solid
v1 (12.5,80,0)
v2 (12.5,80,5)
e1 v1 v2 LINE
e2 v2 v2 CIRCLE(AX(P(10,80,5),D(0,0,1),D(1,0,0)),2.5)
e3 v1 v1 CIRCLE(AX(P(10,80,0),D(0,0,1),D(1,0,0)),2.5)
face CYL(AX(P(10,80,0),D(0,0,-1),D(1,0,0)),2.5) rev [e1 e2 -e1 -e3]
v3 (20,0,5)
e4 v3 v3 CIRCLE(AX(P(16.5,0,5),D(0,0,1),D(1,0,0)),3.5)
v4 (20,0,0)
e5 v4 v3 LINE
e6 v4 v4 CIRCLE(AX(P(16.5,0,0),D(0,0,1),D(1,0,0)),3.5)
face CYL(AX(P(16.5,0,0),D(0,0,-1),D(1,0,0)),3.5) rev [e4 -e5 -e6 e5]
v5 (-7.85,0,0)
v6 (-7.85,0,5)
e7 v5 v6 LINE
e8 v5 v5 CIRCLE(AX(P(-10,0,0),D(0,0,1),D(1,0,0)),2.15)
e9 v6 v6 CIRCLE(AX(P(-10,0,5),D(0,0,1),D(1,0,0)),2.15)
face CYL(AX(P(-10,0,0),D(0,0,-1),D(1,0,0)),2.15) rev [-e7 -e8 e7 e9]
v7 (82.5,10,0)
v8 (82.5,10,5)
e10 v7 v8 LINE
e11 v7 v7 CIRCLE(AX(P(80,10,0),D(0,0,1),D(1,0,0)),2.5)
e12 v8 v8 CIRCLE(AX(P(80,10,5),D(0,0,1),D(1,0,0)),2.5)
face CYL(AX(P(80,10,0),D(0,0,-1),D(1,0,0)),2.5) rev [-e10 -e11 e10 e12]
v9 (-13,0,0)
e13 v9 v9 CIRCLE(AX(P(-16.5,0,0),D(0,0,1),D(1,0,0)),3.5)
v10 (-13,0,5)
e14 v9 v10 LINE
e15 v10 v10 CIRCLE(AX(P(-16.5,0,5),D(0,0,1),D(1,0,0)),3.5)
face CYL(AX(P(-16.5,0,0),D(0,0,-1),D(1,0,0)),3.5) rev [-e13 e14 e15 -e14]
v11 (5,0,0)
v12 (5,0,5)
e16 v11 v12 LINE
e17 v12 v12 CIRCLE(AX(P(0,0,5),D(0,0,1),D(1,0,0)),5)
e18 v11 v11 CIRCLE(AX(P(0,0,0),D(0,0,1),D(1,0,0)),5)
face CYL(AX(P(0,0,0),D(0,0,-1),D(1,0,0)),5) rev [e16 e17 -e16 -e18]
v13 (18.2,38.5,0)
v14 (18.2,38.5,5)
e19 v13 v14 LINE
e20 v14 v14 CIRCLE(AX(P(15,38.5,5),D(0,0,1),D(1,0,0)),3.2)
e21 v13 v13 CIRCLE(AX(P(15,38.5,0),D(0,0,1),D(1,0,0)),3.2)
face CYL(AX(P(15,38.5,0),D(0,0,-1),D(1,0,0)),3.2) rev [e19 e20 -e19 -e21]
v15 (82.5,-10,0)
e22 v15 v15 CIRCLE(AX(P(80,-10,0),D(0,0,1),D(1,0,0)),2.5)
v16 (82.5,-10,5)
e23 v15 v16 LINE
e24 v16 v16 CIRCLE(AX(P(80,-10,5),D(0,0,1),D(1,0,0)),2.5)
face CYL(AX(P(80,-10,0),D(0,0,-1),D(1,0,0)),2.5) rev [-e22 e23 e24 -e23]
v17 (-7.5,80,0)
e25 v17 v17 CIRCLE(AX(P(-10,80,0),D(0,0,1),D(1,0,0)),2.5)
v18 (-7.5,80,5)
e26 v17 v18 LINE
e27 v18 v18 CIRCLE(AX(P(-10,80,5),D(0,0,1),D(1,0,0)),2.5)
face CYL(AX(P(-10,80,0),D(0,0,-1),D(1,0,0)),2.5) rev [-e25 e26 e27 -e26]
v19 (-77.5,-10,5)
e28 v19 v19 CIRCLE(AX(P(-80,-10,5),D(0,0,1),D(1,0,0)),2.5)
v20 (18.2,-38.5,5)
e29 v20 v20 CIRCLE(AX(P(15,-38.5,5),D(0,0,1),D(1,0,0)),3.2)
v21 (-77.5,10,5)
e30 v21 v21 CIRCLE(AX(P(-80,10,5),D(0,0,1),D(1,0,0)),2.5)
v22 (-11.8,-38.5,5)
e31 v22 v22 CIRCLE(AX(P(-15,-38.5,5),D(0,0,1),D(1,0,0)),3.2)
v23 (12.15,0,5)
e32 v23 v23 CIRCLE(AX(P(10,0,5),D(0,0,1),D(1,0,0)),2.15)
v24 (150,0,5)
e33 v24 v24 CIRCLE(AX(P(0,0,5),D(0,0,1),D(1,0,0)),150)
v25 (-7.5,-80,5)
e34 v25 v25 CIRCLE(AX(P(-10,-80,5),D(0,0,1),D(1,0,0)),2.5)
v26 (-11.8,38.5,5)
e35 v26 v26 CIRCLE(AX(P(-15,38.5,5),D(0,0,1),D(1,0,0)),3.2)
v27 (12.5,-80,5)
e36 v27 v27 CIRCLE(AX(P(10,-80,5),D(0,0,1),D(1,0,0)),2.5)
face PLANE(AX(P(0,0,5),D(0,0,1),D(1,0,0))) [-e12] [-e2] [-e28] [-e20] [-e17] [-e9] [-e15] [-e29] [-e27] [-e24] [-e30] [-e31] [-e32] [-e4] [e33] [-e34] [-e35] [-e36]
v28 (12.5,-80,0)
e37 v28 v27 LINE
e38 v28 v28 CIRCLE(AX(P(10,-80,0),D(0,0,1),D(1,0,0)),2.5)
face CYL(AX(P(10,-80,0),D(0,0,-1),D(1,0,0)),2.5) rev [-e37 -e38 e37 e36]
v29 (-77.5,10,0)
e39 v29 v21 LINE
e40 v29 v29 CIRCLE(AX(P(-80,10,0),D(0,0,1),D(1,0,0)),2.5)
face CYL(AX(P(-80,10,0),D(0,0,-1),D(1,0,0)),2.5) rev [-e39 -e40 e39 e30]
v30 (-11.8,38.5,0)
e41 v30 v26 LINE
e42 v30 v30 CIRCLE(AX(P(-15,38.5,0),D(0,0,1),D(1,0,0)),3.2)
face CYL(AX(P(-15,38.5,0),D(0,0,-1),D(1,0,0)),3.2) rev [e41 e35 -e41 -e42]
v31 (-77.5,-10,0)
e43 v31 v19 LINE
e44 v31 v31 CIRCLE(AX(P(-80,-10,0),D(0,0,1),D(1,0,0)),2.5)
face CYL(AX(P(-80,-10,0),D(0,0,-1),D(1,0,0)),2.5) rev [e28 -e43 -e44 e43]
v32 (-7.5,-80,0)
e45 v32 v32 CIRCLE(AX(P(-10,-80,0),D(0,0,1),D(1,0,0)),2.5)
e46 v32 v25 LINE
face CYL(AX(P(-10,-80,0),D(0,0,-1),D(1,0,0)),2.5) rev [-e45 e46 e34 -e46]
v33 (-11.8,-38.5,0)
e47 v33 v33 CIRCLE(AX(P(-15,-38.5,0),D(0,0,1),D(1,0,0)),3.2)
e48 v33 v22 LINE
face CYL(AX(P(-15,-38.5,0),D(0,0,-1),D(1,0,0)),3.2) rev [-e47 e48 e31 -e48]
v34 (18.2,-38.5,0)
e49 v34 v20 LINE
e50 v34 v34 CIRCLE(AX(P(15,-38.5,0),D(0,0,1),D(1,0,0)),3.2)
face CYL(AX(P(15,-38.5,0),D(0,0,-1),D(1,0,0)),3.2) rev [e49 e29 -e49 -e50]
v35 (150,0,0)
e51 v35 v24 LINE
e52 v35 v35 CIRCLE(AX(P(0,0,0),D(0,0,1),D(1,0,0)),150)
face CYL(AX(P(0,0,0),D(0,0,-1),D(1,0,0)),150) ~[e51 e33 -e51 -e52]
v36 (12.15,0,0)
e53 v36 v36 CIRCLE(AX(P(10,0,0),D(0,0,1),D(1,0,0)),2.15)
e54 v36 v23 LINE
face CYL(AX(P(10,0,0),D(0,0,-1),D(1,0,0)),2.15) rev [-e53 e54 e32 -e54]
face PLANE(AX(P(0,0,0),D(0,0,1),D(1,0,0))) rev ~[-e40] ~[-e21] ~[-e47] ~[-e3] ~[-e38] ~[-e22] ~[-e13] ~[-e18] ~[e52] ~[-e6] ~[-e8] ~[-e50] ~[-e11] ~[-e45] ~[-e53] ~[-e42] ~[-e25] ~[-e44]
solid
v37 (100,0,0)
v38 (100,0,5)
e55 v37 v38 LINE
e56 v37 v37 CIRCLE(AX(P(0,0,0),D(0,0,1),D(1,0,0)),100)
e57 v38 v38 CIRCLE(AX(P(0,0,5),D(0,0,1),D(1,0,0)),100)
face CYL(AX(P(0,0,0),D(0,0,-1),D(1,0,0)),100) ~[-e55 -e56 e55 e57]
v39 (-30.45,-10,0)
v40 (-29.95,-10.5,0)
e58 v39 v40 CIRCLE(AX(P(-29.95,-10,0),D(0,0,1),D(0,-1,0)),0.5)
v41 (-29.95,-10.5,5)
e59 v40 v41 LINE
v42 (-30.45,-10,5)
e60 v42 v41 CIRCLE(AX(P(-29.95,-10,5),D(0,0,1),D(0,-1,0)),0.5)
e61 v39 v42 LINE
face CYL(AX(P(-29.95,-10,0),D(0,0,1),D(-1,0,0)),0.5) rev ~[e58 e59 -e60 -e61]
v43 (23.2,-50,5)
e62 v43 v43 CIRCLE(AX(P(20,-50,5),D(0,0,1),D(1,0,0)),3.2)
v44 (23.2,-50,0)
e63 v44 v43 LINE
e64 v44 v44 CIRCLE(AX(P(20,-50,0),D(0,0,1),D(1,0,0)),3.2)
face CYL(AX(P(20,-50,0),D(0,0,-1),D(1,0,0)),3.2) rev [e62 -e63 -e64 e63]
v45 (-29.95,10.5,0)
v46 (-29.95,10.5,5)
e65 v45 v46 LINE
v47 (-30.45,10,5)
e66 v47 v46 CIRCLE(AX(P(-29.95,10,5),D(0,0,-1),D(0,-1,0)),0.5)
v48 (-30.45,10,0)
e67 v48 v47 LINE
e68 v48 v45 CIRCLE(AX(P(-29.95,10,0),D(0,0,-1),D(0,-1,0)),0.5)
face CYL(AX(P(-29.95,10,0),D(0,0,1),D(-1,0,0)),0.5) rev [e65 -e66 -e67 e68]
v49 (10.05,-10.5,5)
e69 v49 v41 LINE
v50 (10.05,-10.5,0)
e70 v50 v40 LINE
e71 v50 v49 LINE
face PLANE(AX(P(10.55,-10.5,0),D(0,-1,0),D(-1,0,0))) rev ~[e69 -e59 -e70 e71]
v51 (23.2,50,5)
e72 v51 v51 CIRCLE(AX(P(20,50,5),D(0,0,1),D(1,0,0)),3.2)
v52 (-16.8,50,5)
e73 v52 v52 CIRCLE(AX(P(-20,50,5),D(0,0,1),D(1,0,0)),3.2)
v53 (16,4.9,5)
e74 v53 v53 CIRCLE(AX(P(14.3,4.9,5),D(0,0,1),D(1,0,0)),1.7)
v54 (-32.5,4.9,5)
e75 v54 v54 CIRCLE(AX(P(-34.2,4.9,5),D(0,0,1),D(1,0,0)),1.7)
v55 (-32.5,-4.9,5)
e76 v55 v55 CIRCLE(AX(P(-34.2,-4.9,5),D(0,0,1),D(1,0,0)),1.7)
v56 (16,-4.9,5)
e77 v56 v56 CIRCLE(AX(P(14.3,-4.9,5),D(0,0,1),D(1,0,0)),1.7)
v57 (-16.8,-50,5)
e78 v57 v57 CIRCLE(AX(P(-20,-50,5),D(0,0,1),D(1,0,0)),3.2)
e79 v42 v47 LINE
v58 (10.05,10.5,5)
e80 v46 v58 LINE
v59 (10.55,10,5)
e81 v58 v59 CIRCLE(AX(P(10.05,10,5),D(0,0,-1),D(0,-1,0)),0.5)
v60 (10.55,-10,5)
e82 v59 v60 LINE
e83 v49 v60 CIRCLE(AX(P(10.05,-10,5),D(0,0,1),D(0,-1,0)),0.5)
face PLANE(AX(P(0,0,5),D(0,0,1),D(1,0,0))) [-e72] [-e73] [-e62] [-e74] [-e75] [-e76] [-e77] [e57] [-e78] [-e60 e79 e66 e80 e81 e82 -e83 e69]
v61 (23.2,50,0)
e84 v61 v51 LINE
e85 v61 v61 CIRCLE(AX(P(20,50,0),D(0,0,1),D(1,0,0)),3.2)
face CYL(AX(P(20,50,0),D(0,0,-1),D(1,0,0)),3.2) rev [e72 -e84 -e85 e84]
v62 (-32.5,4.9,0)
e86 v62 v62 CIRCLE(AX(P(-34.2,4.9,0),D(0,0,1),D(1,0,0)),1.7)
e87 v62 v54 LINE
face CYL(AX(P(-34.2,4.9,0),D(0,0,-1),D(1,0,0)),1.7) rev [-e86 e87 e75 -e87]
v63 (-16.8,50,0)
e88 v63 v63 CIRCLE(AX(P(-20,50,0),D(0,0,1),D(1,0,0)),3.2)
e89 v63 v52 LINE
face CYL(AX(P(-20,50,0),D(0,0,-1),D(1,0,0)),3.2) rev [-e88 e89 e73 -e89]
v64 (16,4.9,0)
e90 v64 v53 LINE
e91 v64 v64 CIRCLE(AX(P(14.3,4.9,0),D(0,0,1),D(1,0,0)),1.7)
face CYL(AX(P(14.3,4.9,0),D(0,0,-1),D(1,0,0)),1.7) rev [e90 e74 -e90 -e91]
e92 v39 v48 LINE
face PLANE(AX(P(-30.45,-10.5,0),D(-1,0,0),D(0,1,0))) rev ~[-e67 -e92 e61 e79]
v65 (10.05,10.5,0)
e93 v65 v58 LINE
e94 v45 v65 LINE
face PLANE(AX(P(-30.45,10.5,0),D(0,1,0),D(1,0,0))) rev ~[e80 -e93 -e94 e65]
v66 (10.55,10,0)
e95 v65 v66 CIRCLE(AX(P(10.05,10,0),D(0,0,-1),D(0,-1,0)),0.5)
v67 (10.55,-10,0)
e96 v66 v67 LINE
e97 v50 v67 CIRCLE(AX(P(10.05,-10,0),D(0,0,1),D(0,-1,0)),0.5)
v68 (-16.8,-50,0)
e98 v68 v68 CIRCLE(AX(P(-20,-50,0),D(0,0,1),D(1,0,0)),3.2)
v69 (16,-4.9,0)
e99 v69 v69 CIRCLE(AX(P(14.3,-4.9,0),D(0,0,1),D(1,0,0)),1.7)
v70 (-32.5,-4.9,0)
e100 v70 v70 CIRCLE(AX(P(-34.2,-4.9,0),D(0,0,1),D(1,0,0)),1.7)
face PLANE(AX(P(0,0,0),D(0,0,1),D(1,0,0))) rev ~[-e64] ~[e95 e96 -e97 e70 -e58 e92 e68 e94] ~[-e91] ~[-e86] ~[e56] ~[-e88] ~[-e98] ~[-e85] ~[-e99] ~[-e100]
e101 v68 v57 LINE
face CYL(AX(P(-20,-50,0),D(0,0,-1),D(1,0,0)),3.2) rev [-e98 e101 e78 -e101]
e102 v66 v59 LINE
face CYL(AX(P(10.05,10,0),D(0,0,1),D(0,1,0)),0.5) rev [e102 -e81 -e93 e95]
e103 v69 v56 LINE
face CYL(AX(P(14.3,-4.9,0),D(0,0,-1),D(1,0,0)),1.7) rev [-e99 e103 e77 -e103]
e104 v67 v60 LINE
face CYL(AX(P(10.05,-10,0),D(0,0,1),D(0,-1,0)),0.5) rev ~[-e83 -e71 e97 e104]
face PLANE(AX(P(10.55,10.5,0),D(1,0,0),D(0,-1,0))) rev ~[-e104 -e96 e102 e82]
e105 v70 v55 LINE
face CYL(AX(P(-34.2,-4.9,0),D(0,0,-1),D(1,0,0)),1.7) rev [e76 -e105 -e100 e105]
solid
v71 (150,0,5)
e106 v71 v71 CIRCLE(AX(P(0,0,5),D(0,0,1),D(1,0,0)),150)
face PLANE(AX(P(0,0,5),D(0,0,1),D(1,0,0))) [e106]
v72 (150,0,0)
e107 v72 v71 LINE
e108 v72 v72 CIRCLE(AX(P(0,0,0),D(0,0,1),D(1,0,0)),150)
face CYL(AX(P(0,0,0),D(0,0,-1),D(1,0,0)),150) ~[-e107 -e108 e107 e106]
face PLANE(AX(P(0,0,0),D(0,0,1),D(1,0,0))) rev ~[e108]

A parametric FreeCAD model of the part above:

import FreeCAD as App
import Part
import Sketcher

V = App.Vector


def edges_at(feature, points):
    """Names of the edges that pass closest to the given points."""
    edges = feature.Shape.Edges
    near = lambda p: min(range(len(edges)), key=lambda i: edges[i].distToShape(Part.Vertex(*p))[0])
    return sorted({f"Edge{near(p) + 1}" for p in points})


def add_polygon(sketch, points):
    """Adds a closed chain of lines whose ends are joined by coincident constraints."""
    first, n = sketch.GeometryCount, len(points)
    for a, b in zip(points, points[1:] + points[:1]):
        sketch.addGeometry(Part.LineSegment(App.Vector(*a, 0), App.Vector(*b, 0)), False)
    for i in range(n):
        sketch.addConstraint(Sketcher.Constraint("Coincident", first + i, 2, first + (i + 1) % n, 1))

doc = App.newDocument("Part")
params = doc.addObject("Spreadsheet::Sheet", "Params")
for row, (alias, value) in enumerate([
    ("sketch1_diameter", "300 mm"),
    ("pad1_length", "5 mm"),
    ("sketch2_diameter", "300 mm"),
    ("sketch2_diameter2", "5 mm"),
    ("sketch2_diameter3", "7 mm"),
    ("sketch2_diameter4", "10 mm"),
    ("sketch2_diameter5", "6.4 mm"),
    ("pad2_length", "5 mm"),
    ("sketch3_diameter", "200 mm"),
    ("sketch3_diameter2", "6.4 mm"),
    ("sketch3_diameter3", "3.4 mm"),
    ("sketch3_width", "41 mm"),
    ("sketch3_height", "21 mm"),
    ("pad3_length", "5 mm"),
    ("fillet_radius", "0.5 mm"),
], start=1):
    params.set(f"A{row}", alias)
    params.set(f"B{row}", "=" + value)
    params.setAlias(f"B{row}", alias)

body = doc.addObject("PartDesign::Body", "Body")

# Sketch on XY plane
sketch1 = body.newObject("Sketcher::SketchObject", "Sketch")
sketch1.AttachmentSupport = (doc.getObject("XY_Plane"), [""])
sketch1.MapMode = "FlatFace"
sketch1.addGeometry(Part.Circle(V(0, 0, 0), V(0, 0, 1), 150), False)
sketch1.addConstraint(Sketcher.Constraint("Coincident", 0, 3, -1, 1))
sketch1.addConstraint(Sketcher.Constraint("Diameter", 0, 300.0))
sketch1.setExpression("Constraints[1]", "Params.sketch1_diameter")
pad1 = body.newObject("PartDesign::Pad", "Pad")
pad1.Profile = sketch1
pad1.setExpression("Length", "Params.pad1_length")
body2 = doc.addObject("PartDesign::Body", "Body001")

# Sketch on XY plane
sketch2 = body2.newObject("Sketcher::SketchObject", "Sketch001")
sketch2.AttachmentSupport = (doc.getObject("XY_Plane001"), [""])
sketch2.MapMode = "FlatFace"
sketch2.addGeometry(Part.Circle(V(0, 0, 0), V(0, 0, 1), 150), False)
sketch2.addGeometry(Part.Circle(V(-10, -80, 0), V(0, 0, 1), 2.5), False)
sketch2.addGeometry(Part.Circle(V(-80, -10, 0), V(0, 0, 1), 2.5), False)
sketch2.addGeometry(Part.Circle(V(-15, -38.5, 0), V(0, 0, 1), 3.2), False)
sketch2.addGeometry(Part.Circle(V(10, -80, 0), V(0, 0, 1), 2.5), False)
sketch2.addGeometry(Part.Circle(V(15, -38.5, 0), V(0, 0, 1), 3.2), False)
sketch2.addGeometry(Part.Circle(V(80, -10, 0), V(0, 0, 1), 2.5), False)
sketch2.addGeometry(Part.Circle(V(-80, 10, 0), V(0, 0, 1), 2.5), False)
sketch2.addGeometry(Part.Circle(V(-16.5, 0, 0), V(0, 0, 1), 3.5), False)
sketch2.addGeometry(Part.Circle(V(-10, 0, 0), V(0, 0, 1), 2.1), False)
sketch2.addGeometry(Part.Circle(V(-15, 38.5, 0), V(0, 0, 1), 3.2), False)
sketch2.addGeometry(Part.Circle(V(-10, 80, 0), V(0, 0, 1), 2.5), False)
sketch2.addGeometry(Part.Circle(V(0, 0, 0), V(0, 0, 1), 5), False)
sketch2.addGeometry(Part.Circle(V(10, 0, 0), V(0, 0, 1), 2.1), False)
sketch2.addGeometry(Part.Circle(V(16.5, 0, 0), V(0, 0, 1), 3.5), False)
sketch2.addGeometry(Part.Circle(V(15, 38.5, 0), V(0, 0, 1), 3.2), False)
sketch2.addGeometry(Part.Circle(V(80, 10, 0), V(0, 0, 1), 2.5), False)
sketch2.addGeometry(Part.Circle(V(10, 80, 0), V(0, 0, 1), 2.5), False)
sketch2.addConstraint(Sketcher.Constraint("Coincident", 0, 3, -1, 1))
sketch2.addConstraint(Sketcher.Constraint("Coincident", 12, 3, -1, 1))
sketch2.addConstraint(Sketcher.Constraint("Equal", 1, 2))
sketch2.addConstraint(Sketcher.Constraint("Equal", 2, 4))
sketch2.addConstraint(Sketcher.Constraint("Equal", 3, 5))
sketch2.addConstraint(Sketcher.Constraint("Equal", 4, 6))
sketch2.addConstraint(Sketcher.Constraint("Equal", 6, 7))
sketch2.addConstraint(Sketcher.Constraint("Equal", 5, 10))
sketch2.addConstraint(Sketcher.Constraint("Equal", 7, 11))
sketch2.addConstraint(Sketcher.Constraint("Equal", 9, 13))
sketch2.addConstraint(Sketcher.Constraint("Equal", 8, 14))
sketch2.addConstraint(Sketcher.Constraint("Equal", 10, 15))
sketch2.addConstraint(Sketcher.Constraint("Equal", 11, 16))
sketch2.addConstraint(Sketcher.Constraint("Equal", 16, 17))
sketch2.addConstraint(Sketcher.Constraint("Symmetric", 6, 3, 7, 3, -1, 1))
sketch2.addConstraint(Sketcher.Constraint("Symmetric", 5, 3, 10, 3, -1, 1))
sketch2.addConstraint(Sketcher.Constraint("Symmetric", 4, 3, 11, 3, -1, 1))
sketch2.addConstraint(Sketcher.Constraint("Symmetric", 9, 3, 13, 3, -1, 1))
sketch2.addConstraint(Sketcher.Constraint("Symmetric", 8, 3, 14, 3, -1, 1))
sketch2.addConstraint(Sketcher.Constraint("Symmetric", 3, 3, 15, 3, -1, 1))
sketch2.addConstraint(Sketcher.Constraint("Symmetric", 2, 3, 16, 3, -1, 1))
sketch2.addConstraint(Sketcher.Constraint("Symmetric", 1, 3, 17, 3, -1, 1))
sketch2.addConstraint(Sketcher.Constraint("Symmetric", 1, 3, 4, 3, -2))
sketch2.addConstraint(Sketcher.Constraint("Symmetric", 3, 3, 5, 3, -2))
sketch2.addConstraint(Sketcher.Constraint("Symmetric", 2, 3, 6, 3, -2))
sketch2.addConstraint(Sketcher.Constraint("PointOnObject", 8, 3, -1))
sketch2.addConstraint(Sketcher.Constraint("PointOnObject", 9, 3, -1))
sketch2.addConstraint(Sketcher.Constraint("Vertical", 1, 3, 9, 3))
sketch2.addConstraint(Sketcher.Constraint("Diameter", 0, 300.0))
sketch2.addConstraint(Sketcher.Constraint("Diameter", 1, 5.0))
sketch2.addConstraint(Sketcher.Constraint("Diameter", 8, 7.0))
sketch2.addConstraint(Sketcher.Constraint("Diameter", 12, 10.0))
sketch2.addConstraint(Sketcher.Constraint("Diameter", 3, 6.4))
sketch2.addConstraint(Sketcher.Constraint("Diameter", 9, 4.3))
sketch2.addConstraint(Sketcher.Constraint("DistanceX", 1, 3, -1, 1, 10.0))
sketch2.addConstraint(Sketcher.Constraint("DistanceY", 1, 3, -1, 1, 80.0))
sketch2.addConstraint(Sketcher.Constraint("DistanceX", 2, 3, -1, 1, 80.0))
sketch2.addConstraint(Sketcher.Constraint("DistanceY", 2, 3, -1, 1, 10.0))
sketch2.addConstraint(Sketcher.Constraint("DistanceX", 3, 3, -1, 1, 15.0))
sketch2.addConstraint(Sketcher.Constraint("DistanceY", 3, 3, 10, 3, 77.0))
sketch2.addConstraint(Sketcher.Constraint("DistanceX", 8, 3, 14, 3, 33.0))
sketch2.setExpression("Constraints[28]", "Params.sketch2_diameter")
sketch2.setExpression("Constraints[29]", "Params.sketch2_diameter2")
sketch2.setExpression("Constraints[30]", "Params.sketch2_diameter3")
sketch2.setExpression("Constraints[31]", "Params.sketch2_diameter4")
sketch2.setExpression("Constraints[32]", "Params.sketch2_diameter5")
pad2 = body2.newObject("PartDesign::Pad", "Pad001")
pad2.Profile = sketch2
pad2.setExpression("Length", "Params.pad2_length")
body3 = doc.addObject("PartDesign::Body", "Body002")

# Sketch on XY plane
sketch3 = body3.newObject("Sketcher::SketchObject", "Sketch002")
sketch3.AttachmentSupport = (doc.getObject("XY_Plane002"), [""])
sketch3.MapMode = "FlatFace"
sketch3.addGeometry(Part.Circle(V(0, 0, 0), V(0, 0, 1), 100), False)  # 0
sketch3.addGeometry(Part.Circle(V(-20, -50, 0), V(0, 0, 1), 3.2), False)  # 1
sketch3.addGeometry(Part.Circle(V(-34.2, -4.9, 0), V(0, 0, 1), 1.7), False)  # 2
sketch3.addGeometry(Part.Circle(V(20, -50, 0), V(0, 0, 1), 3.2), False)  # 3
sketch3.addGeometry(Part.Circle(V(14.3, -4.9, 0), V(0, 0, 1), 1.7), False)  # 4
sketch3.addGeometry(Part.Circle(V(-34.2, 4.9, 0), V(0, 0, 1), 1.7), False)  # 5
add_polygon(sketch3, [(-30.4, -10.5), (-30.4, 10.5), (10.6, 10.5), (10.6, -10.5)])  # lines 6-9
sketch3.addGeometry(Part.Circle(V(-20, 50, 0), V(0, 0, 1), 3.2), False)  # 10
sketch3.addGeometry(Part.Circle(V(14.3, 4.9, 0), V(0, 0, 1), 1.7), False)  # 11
sketch3.addGeometry(Part.Circle(V(20, 50, 0), V(0, 0, 1), 3.2), False)  # 12
sketch3.addConstraint(Sketcher.Constraint("Vertical", 6))
sketch3.addConstraint(Sketcher.Constraint("Horizontal", 7))
sketch3.addConstraint(Sketcher.Constraint("Vertical", 8))
sketch3.addConstraint(Sketcher.Constraint("Horizontal", 9))
sketch3.addConstraint(Sketcher.Constraint("Coincident", 0, 3, -1, 1))
sketch3.addConstraint(Sketcher.Constraint("Equal", 1, 3))
sketch3.addConstraint(Sketcher.Constraint("Equal", 2, 4))
sketch3.addConstraint(Sketcher.Constraint("Equal", 4, 5))
sketch3.addConstraint(Sketcher.Constraint("Equal", 3, 10))
sketch3.addConstraint(Sketcher.Constraint("Equal", 5, 11))
sketch3.addConstraint(Sketcher.Constraint("Equal", 10, 12))
sketch3.addConstraint(Sketcher.Constraint("Symmetric", 3, 3, 10, 3, -1, 1))
sketch3.addConstraint(Sketcher.Constraint("Symmetric", 1, 3, 12, 3, -1, 1))
sketch3.addConstraint(Sketcher.Constraint("Symmetric", 1, 3, 3, 3, -2))
sketch3.addConstraint(Sketcher.Constraint("Symmetric", 2, 3, 5, 3, -1))
sketch3.addConstraint(Sketcher.Constraint("Symmetric", 4, 3, 11, 3, -1))
sketch3.addConstraint(Sketcher.Constraint("Horizontal", 2, 3, 4, 3))
sketch3.addConstraint(Sketcher.Constraint("Diameter", 0, 200.0))
sketch3.addConstraint(Sketcher.Constraint("Diameter", 1, 6.4))
sketch3.addConstraint(Sketcher.Constraint("Diameter", 2, 3.4))
sketch3.addConstraint(Sketcher.Constraint("DistanceX", 7, 1, 7, 2, 41.0))
sketch3.addConstraint(Sketcher.Constraint("DistanceY", 6, 1, 6, 2, 21.0))
sketch3.addConstraint(Sketcher.Constraint("DistanceX", 1, 3, -1, 1, 20.0))
sketch3.addConstraint(Sketcher.Constraint("DistanceY", 1, 3, -1, 1, 50.0))
sketch3.addConstraint(Sketcher.Constraint("DistanceX", 2, 3, -1, 1, 34.2))
sketch3.addConstraint(Sketcher.Constraint("DistanceY", 2, 3, -1, 1, 4.9))
sketch3.addConstraint(Sketcher.Constraint("DistanceX", -1, 1, 4, 3, 14.3))
sketch3.addConstraint(Sketcher.Constraint("DistanceY", -1, 1, 6, 2, 10.5))
sketch3.addConstraint(Sketcher.Constraint("DistanceX", 6, 2, -1, 1, 30.45))
sketch3.setExpression("Constraints[21]", "Params.sketch3_diameter")
sketch3.setExpression("Constraints[22]", "Params.sketch3_diameter2")
sketch3.setExpression("Constraints[23]", "Params.sketch3_diameter3")
sketch3.setExpression("Constraints[24]", "Params.sketch3_width")
sketch3.setExpression("Constraints[25]", "Params.sketch3_height")
pad3 = body3.newObject("PartDesign::Pad", "Pad002")
pad3.Profile = sketch3
pad3.setExpression("Length", "Params.pad3_length")
doc.recompute()

fillet = body3.newObject("PartDesign::Fillet", "Fillet")
fillet.Base = (pad3, edges_at(pad3, [
    (-30.45, 10.5, 2.5),
    (-30.45, -10.5, 2.5),
    (10.55, -10.5, 2.5),
    (10.55, 10.5, 2.5),
]))
fillet.setExpression("Radius", "Params.fillet_radius")

doc.recompute()
